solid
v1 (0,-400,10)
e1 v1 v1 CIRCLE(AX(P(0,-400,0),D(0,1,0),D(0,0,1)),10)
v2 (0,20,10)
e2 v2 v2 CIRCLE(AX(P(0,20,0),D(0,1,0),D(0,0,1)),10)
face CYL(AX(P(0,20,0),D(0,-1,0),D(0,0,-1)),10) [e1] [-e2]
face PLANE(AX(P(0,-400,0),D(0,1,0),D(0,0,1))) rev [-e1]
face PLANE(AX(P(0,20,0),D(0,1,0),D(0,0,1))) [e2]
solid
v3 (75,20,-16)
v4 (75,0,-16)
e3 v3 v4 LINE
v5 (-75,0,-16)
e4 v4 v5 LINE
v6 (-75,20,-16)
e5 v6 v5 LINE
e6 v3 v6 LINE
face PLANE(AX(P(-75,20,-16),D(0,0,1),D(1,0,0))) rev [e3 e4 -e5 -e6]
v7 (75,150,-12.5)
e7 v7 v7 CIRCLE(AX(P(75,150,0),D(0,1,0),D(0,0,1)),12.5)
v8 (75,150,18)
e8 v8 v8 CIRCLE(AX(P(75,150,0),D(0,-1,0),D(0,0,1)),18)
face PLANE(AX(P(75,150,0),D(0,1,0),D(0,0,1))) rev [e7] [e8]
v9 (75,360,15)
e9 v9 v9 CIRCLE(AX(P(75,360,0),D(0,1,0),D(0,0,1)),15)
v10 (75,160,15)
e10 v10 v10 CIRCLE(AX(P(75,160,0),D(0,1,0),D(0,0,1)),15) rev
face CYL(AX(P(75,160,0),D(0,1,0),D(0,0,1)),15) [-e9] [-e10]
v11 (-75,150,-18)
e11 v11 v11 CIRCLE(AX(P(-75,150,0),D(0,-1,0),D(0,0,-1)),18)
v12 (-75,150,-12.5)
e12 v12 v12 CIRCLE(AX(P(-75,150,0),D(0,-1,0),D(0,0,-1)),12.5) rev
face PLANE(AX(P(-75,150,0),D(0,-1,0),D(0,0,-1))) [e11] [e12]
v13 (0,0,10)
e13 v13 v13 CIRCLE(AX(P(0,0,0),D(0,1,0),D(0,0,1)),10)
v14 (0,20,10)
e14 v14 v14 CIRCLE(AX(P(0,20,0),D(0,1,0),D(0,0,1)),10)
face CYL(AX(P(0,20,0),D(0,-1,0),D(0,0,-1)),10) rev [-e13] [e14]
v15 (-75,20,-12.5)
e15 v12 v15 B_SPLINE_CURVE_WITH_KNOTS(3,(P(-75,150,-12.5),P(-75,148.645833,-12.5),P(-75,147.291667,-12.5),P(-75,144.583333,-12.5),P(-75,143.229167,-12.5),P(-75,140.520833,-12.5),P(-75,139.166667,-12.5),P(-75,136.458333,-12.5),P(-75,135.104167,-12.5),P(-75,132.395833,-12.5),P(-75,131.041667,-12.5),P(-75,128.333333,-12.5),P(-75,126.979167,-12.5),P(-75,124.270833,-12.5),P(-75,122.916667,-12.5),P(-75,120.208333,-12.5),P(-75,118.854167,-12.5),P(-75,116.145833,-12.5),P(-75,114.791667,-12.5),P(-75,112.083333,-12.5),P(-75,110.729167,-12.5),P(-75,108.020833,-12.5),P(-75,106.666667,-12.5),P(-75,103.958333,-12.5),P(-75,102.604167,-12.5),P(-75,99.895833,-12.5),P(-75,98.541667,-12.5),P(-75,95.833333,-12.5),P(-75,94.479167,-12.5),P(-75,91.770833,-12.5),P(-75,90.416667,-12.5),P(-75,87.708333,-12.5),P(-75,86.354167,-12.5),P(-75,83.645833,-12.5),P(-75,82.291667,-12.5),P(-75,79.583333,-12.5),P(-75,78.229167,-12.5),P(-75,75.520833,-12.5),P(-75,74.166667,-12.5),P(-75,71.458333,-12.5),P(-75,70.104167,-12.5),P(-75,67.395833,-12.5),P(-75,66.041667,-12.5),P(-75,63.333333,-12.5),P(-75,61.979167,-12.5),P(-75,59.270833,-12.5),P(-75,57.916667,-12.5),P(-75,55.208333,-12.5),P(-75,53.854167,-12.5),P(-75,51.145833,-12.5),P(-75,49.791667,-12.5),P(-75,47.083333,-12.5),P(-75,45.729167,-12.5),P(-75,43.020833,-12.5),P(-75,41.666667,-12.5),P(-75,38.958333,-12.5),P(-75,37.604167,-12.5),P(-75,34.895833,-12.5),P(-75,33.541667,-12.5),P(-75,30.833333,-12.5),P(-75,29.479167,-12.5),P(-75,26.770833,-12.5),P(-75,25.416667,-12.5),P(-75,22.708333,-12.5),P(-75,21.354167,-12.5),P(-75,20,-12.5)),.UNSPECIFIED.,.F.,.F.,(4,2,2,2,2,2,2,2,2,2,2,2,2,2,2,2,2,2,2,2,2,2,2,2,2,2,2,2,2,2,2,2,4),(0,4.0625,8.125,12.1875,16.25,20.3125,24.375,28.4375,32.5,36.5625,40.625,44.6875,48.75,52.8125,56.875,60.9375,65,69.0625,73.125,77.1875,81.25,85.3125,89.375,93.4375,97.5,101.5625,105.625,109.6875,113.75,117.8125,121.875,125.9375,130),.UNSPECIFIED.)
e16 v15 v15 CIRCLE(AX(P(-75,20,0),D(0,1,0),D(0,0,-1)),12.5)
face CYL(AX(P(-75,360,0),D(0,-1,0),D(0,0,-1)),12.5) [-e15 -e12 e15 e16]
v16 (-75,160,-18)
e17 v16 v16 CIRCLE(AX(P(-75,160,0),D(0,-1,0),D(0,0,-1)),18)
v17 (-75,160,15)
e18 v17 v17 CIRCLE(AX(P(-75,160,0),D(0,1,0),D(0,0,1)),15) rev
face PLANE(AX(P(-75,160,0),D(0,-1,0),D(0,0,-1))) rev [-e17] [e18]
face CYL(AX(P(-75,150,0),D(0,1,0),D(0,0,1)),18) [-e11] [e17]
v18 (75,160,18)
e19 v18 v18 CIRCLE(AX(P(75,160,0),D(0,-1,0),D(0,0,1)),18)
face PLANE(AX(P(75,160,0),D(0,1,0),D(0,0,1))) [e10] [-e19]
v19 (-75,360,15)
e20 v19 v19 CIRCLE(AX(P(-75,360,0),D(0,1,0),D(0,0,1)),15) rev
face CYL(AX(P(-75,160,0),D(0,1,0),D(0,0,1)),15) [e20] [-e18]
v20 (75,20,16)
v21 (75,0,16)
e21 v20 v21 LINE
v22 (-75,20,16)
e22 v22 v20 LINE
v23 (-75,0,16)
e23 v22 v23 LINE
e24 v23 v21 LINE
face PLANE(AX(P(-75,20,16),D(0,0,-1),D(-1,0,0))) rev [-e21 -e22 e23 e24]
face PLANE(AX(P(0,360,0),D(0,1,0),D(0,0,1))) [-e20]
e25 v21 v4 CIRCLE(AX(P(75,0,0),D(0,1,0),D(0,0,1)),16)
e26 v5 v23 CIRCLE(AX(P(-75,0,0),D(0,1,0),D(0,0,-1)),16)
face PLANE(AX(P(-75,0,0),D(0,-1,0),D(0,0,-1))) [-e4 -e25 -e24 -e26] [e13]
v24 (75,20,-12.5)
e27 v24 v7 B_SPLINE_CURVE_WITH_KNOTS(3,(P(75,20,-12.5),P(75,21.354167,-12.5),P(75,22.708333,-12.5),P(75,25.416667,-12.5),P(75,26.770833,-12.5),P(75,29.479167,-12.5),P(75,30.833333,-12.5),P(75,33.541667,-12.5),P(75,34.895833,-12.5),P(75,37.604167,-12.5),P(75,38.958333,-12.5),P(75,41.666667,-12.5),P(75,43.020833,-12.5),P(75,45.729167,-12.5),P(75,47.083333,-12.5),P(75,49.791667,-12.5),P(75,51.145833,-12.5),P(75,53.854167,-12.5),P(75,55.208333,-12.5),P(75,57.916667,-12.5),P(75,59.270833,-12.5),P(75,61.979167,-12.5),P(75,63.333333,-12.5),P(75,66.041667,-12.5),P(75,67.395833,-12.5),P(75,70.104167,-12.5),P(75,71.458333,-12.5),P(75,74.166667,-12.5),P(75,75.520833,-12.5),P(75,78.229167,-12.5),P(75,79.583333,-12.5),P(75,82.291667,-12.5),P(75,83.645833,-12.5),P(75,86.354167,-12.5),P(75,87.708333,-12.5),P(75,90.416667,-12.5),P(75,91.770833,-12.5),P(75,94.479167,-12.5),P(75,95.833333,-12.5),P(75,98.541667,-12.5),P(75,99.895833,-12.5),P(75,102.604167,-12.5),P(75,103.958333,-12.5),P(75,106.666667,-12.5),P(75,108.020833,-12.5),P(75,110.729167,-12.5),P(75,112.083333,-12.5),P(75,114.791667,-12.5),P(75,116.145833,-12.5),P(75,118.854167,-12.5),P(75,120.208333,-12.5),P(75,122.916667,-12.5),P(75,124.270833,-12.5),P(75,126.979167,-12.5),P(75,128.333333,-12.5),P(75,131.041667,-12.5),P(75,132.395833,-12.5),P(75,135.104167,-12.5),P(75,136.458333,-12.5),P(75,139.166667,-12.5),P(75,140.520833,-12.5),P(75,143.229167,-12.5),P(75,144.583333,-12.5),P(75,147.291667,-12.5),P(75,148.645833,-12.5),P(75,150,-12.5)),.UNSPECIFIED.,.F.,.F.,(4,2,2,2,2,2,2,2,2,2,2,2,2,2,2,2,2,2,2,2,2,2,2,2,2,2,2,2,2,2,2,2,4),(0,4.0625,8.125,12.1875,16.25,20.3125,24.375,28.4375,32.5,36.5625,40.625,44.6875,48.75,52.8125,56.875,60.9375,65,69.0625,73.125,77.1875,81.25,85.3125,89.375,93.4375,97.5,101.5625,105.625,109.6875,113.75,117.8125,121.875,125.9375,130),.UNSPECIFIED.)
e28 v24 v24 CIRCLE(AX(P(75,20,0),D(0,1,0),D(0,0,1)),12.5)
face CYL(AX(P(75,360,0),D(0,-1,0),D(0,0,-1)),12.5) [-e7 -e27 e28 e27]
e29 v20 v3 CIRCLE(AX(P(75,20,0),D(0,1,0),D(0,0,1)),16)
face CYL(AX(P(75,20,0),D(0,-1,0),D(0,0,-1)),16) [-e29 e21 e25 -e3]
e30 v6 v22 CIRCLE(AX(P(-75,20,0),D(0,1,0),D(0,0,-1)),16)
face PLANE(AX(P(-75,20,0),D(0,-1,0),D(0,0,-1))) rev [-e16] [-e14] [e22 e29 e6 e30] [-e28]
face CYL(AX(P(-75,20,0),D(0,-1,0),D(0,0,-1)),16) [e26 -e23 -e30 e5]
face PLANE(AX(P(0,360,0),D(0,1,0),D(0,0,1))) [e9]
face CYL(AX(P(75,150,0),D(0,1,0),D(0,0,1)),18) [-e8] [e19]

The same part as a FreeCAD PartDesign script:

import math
import FreeCAD as App
import Part
import Sketcher

V = App.Vector
Q = App.Units.Quantity

doc = App.newDocument("Part")
body = doc.addObject("PartDesign::Body", "Body")

sketch1 = doc.addObject("Sketcher::SketchObject", "Sketch")
body.addObject(sketch1)
sketch1.AttachmentSupport = (doc.XZ_Plane, [""])
sketch1.MapMode = "FlatFace"
sketch1.addGeometry([
    Part.LineSegment(V(75, -16, 0), V(-75, -16, 0)),
    Part.ArcOfCircle(Part.Circle(V(-75, 0, 0), V(0, 0, 1), 16), math.radians(90), math.radians(270)),
    Part.LineSegment(V(-75, 16, 0), V(75, 16, 0)),
    Part.ArcOfCircle(Part.Circle(V(75, 0, 0), V(0, 0, 1), 16), math.radians(-90), math.radians(90)),
    Part.Circle(V(75, 0, 0), V(0, 0, 1), 12),
    Part.Circle(V(0, 0, 0), V(0, 0, 1), 10),
    Part.Circle(V(-75, 0, 0), V(0, 0, 1), 12),
], False)
sketch1.addConstraint([
    Sketcher.Constraint("Tangent", 0, 2, 1, 2),
    Sketcher.Constraint("Tangent", 1, 1, 2, 1),
    Sketcher.Constraint("Tangent", 2, 2, 3, 2),
    Sketcher.Constraint("Tangent", 3, 1, 0, 1),
    Sketcher.Constraint("Horizontal", 0),
    Sketcher.Constraint("Horizontal", 2),
    Sketcher.Constraint("Coincident", 5, 3, -1, 1),
    Sketcher.Constraint("Coincident", 4, 3, 3, 3),
    Sketcher.Constraint("Coincident", 6, 3, 1, 3),
    Sketcher.Constraint("Equal", 4, 6),
    Sketcher.Constraint("Symmetric", 1, 3, 3, 3, -1, 1),
    Sketcher.Constraint("Diameter", 4, Q("25 mm")),
    Sketcher.Constraint("Diameter", 5, Q("20 mm")),
    Sketcher.Constraint("Radius", 1, Q("16 mm")),
    Sketcher.Constraint("DistanceX", 0, 2, 0, 1, Q("150 mm")),
])
pad1 = doc.addObject("PartDesign::Pad", "Pad")
body.addObject(pad1)
pad1.Profile = sketch1
pad1.Length = 20
pad1.Reversed = True

sketch2 = doc.addObject("Sketcher::SketchObject", "Sketch001")
body.addObject(sketch2)
sketch2.AttachmentSupport = (doc.XZ_Plane, [""])
sketch2.MapMode = "FlatFace"
sketch2.addGeometry([
    Part.Circle(V(-75, 0, 0), V(0, 0, 1), 12),
    Part.Circle(V(75, 0, 0), V(0, 0, 1), 12),
], False)
sketch2.addConstraint([
    Sketcher.Constraint("Equal", 0, 1),
    Sketcher.Constraint("Symmetric", 0, 3, 1, 3, -1, 1),
    Sketcher.Constraint("PointOnObject", 0, 3, -1),
    Sketcher.Constraint("Diameter", 0, Q("25 mm")),
    Sketcher.Constraint("DistanceX", 0, 3, -1, 1, Q("75 mm")),
])
pad2 = doc.addObject("PartDesign::Pad", "Pad001")
body.addObject(pad2)
pad2.Profile = sketch2
pad2.Length = 360
pad2.Reversed = True

sketch3 = doc.addObject("Sketcher::SketchObject", "Sketch002")
body.addObject(sketch3)
sketch3.AttachmentSupport = (doc.XZ_Plane, [""])
sketch3.MapMode = "FlatFace"
sketch3.AttachmentOffset = App.Placement(V(0, 0, -360), App.Rotation())
sketch3.addGeometry([
    Part.Circle(V(-75, 0, 0), V(0, 0, 1), 15),
    Part.Circle(V(75, 0, 0), V(0, 0, 1), 15),
], False)
sketch3.addConstraint([
    Sketcher.Constraint("Equal", 0, 1),
    Sketcher.Constraint("Symmetric", 0, 3, 1, 3, -1, 1),
    Sketcher.Constraint("PointOnObject", 0, 3, -1),
    Sketcher.Constraint("Diameter", 0, Q("30 mm")),
    Sketcher.Constraint("DistanceX", 0, 3, -1, 1, Q("75 mm")),
])
pad3 = doc.addObject("PartDesign::Pad", "Pad002")
body.addObject(pad3)
pad3.Profile = sketch3
pad3.Length = 200

sketch4 = doc.addObject("Sketcher::SketchObject", "Sketch003")
body.addObject(sketch4)
sketch4.AttachmentSupport = (doc.XZ_Plane, [""])
sketch4.MapMode = "FlatFace"
sketch4.AttachmentOffset = App.Placement(V(0, 0, -160), App.Rotation())
sketch4.addGeometry([
    Part.Circle(V(-75, 0, 0), V(0, 0, 1), 18),
    Part.Circle(V(75, 0, 0), V(0, 0, 1), 18),
], False)
sketch4.addConstraint([
    Sketcher.Constraint("Equal", 0, 1),
    Sketcher.Constraint("Symmetric", 0, 3, 1, 3, -1, 1),
    Sketcher.Constraint("PointOnObject", 0, 3, -1),
    Sketcher.Constraint("Diameter", 0, Q("36 mm")),
    Sketcher.Constraint("DistanceX", 0, 3, -1, 1, Q("75 mm")),
])
pad4 = doc.addObject("PartDesign::Pad", "Pad003")
body.addObject(pad4)
pad4.Profile = sketch4
pad4.Length = 10
body2 = doc.addObject("PartDesign::Body", "Body001")

sketch5 = doc.addObject("Sketcher::SketchObject", "Sketch004")
body2.addObject(sketch5)
sketch5.AttachmentSupport = (doc.getObject("XZ_Plane001"), [""])
sketch5.MapMode = "FlatFace"
sketch5.addGeometry(Part.Circle(V(0, 0, 0), V(0, 0, 1), 10), False)
sketch5.addConstraint([
    Sketcher.Constraint("Coincident", 0, 3, -1, 1),
    Sketcher.Constraint("Diameter", 0, Q("20 mm")),
])
pad5 = doc.addObject("PartDesign::Pad", "Pad004")
body2.addObject(pad5)
pad5.Profile = sketch5
pad5.Type = "TwoLengths"
pad5.Length = 20
pad5.Length2 = 400
pad5.Reversed = True

doc.recompute()
